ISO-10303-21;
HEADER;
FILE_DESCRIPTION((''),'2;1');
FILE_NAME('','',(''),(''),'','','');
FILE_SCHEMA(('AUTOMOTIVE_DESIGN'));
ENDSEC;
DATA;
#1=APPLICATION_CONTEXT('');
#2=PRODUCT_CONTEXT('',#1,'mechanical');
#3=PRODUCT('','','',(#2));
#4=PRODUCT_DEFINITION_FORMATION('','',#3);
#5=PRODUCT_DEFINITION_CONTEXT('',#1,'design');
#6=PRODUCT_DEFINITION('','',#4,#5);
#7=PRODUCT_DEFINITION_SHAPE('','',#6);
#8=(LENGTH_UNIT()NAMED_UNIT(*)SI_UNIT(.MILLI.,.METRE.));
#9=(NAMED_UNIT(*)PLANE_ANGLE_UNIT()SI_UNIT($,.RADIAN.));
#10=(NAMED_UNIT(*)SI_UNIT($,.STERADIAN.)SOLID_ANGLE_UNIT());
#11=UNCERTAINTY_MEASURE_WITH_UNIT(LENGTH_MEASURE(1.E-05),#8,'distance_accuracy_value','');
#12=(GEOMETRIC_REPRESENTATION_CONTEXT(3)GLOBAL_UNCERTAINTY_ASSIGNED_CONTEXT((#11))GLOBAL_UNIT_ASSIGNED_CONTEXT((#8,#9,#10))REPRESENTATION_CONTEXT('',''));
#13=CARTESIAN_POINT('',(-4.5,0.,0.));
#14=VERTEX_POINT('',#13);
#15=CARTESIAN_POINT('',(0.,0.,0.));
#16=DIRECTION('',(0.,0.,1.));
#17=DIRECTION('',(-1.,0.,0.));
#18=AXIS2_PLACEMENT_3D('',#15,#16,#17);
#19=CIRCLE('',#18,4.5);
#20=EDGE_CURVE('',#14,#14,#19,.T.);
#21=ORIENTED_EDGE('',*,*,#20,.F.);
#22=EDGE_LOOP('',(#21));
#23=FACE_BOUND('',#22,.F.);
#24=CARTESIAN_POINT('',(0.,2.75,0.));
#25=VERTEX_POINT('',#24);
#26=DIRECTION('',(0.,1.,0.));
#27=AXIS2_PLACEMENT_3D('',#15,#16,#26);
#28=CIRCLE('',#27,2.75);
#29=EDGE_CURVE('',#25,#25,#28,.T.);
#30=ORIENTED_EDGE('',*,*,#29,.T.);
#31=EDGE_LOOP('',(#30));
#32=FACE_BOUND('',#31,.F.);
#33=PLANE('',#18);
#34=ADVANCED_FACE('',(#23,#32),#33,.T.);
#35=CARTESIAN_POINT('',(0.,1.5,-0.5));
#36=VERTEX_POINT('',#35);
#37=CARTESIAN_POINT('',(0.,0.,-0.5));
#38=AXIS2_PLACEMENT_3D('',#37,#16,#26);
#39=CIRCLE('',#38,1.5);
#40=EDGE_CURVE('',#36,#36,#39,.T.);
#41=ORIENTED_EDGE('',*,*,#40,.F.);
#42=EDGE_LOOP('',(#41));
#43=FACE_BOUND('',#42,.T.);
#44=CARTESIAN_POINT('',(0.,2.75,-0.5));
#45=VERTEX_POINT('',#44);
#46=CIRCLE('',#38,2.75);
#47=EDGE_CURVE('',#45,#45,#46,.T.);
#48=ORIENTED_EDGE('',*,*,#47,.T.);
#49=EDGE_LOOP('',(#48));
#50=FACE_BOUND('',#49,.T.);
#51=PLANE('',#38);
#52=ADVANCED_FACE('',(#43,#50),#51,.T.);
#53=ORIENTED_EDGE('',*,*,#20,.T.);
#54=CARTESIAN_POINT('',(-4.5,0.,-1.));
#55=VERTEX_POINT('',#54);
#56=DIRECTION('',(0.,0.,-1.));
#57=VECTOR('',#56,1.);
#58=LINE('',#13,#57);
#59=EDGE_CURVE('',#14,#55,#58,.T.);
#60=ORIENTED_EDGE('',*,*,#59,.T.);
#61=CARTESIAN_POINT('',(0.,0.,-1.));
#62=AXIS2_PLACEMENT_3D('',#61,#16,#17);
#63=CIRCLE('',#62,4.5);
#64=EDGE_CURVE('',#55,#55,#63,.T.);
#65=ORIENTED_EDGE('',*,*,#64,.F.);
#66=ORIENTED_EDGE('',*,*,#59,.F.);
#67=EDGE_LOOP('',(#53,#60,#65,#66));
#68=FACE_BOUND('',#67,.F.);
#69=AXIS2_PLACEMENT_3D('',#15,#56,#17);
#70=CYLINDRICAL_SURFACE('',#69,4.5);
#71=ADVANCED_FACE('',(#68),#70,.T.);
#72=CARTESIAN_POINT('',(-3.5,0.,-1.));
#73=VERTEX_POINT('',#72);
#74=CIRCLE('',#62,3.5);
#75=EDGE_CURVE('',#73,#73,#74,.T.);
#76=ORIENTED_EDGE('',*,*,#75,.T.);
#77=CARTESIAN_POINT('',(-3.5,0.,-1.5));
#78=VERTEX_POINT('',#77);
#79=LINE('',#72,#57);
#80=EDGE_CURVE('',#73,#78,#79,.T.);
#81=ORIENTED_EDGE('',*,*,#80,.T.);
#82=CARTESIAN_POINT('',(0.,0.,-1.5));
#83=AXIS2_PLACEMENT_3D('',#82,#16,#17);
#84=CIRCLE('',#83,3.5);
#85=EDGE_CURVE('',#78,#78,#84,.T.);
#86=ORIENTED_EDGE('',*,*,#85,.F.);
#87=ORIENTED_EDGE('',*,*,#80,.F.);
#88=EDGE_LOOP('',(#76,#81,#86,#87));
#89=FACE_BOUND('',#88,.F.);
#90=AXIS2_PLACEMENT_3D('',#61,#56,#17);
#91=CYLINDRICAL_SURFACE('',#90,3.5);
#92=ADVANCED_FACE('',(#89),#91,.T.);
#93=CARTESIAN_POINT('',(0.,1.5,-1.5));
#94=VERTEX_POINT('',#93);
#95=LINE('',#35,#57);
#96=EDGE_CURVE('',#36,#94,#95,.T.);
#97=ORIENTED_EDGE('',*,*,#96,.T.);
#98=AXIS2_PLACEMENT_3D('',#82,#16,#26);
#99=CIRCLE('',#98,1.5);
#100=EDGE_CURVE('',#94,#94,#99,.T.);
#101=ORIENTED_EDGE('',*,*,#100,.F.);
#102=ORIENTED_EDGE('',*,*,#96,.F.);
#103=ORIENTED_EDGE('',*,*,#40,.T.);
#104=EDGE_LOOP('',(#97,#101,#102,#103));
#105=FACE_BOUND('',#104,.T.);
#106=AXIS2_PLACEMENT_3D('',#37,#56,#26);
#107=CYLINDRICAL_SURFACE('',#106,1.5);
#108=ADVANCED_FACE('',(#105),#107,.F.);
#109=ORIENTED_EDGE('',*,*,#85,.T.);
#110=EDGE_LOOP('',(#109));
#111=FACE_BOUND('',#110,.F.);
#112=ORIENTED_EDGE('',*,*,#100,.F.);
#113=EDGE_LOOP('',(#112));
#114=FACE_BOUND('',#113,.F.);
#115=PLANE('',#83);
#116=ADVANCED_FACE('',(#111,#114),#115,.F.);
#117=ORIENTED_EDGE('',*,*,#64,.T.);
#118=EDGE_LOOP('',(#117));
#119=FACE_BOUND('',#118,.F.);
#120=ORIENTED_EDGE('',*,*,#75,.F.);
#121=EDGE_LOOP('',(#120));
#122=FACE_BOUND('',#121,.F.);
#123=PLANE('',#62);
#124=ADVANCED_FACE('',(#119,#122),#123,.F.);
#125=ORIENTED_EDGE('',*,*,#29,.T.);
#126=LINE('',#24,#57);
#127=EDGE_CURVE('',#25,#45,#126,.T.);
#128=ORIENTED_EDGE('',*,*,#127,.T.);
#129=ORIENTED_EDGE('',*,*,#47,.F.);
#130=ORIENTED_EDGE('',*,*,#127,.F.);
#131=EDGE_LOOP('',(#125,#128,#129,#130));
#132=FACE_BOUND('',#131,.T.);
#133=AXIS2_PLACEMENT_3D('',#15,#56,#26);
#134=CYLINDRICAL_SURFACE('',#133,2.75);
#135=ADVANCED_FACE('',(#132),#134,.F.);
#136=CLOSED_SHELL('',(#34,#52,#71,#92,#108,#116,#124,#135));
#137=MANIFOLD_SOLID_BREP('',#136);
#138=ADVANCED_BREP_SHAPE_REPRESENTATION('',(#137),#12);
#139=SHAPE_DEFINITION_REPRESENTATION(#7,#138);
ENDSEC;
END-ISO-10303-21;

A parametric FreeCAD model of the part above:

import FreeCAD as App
import Part
import Sketcher
Q = App.Units.Quantity

doc = App.newDocument("Part")
body = doc.addObject("PartDesign::Body", "Body")

# Sketch on XZ plane
sketch1 = body.newObject("Sketcher::SketchObject", "Sketch")
sketch1.AttachmentSupport = (doc.getObject("XZ_Plane"), [""])
sketch1.MapMode = "FlatFace"
sketch1.addGeometry([
    Part.LineSegment(App.Vector(-4.5, 0, 0), App.Vector(0, 0, 0)),  # 0
    Part.LineSegment(App.Vector(0, 0, 0), App.Vector(0, -1.5, 0)),  # 1
    Part.LineSegment(App.Vector(0, -1.5, 0), App.Vector(-3.5, -1.5, 0)),  # 2
    Part.LineSegment(App.Vector(-3.5, -1.5, 0), App.Vector(-3.5, -1, 0)),  # 3
    Part.LineSegment(App.Vector(-3.5, -1, 0), App.Vector(-4.5, -1, 0)),  # 4
    Part.LineSegment(App.Vector(-4.5, -1, 0), App.Vector(-4.5, 0, 0)),  # 5
], False)
sketch1.addConstraint([
    Sketcher.Constraint("Coincident", 0, 2, 1, 1),
    Sketcher.Constraint("Coincident", 1, 2, 2, 1),
    Sketcher.Constraint("Coincident", 2, 2, 3, 1),
    Sketcher.Constraint("Coincident", 3, 2, 4, 1),
    Sketcher.Constraint("Coincident", 4, 2, 5, 1),
    Sketcher.Constraint("Coincident", 5, 2, 0, 1),
    Sketcher.Constraint("Horizontal", 0),
    Sketcher.Constraint("Vertical", 1),
    Sketcher.Constraint("Horizontal", 2),
    Sketcher.Constraint("Vertical", 3),
    Sketcher.Constraint("Horizontal", 4),
    Sketcher.Constraint("Vertical", 5),
    Sketcher.Constraint("Coincident", 0, 2, -1, 1),
    Sketcher.Constraint("Equal", 4, 5),
    Sketcher.Constraint("DistanceY", 1, 2, 1, 1, Q("1.5 mm")),
    Sketcher.Constraint("DistanceY", 3, 1, 3, 2, Q("0.5 mm")),
    Sketcher.Constraint("DistanceX", 0, 1, 0, 2, Q("4.5 mm")),
])
revolution = body.newObject("PartDesign::Revolution", "Revolution")
revolution.Profile = sketch1
revolution.ReferenceAxis = (sketch1, ["V_Axis"])
revolution.Angle = 360

# Sketch on YZ plane
sketch2 = body.newObject("Sketcher::SketchObject", "Sketch001")
sketch2.AttachmentSupport = (doc.getObject("YZ_Plane"), [""])
sketch2.MapMode = "FlatFace"
sketch2.addGeometry([
    Part.LineSegment(App.Vector(2.75, 0, 0), App.Vector(0, 0, 0)),  # 0
    Part.LineSegment(App.Vector(0, 0, 0), App.Vector(0, -1.5, 0)),  # 1
    Part.LineSegment(App.Vector(0, -1.5, 0), App.Vector(1.5, -1.5, 0)),  # 2
    Part.LineSegment(App.Vector(1.5, -1.5, 0), App.Vector(1.5, -0.5, 0)),  # 3
    Part.LineSegment(App.Vector(1.5, -0.5, 0), App.Vector(2.75, -0.5, 0)),  # 4
    Part.LineSegment(App.Vector(2.75, -0.5, 0), App.Vector(2.75, 0, 0)),  # 5
], False)
sketch2.addConstraint([
    Sketcher.Constraint("Coincident", 0, 2, 1, 1),
    Sketcher.Constraint("Coincident", 1, 2, 2, 1),
    Sketcher.Constraint("Coincident", 2, 2, 3, 1),
    Sketcher.Constraint("Coincident", 3, 2, 4, 1),
    Sketcher.Constraint("Coincident", 4, 2, 5, 1),
    Sketcher.Constraint("Coincident", 5, 2, 0, 1),
    Sketcher.Constraint("Horizontal", 0),
    Sketcher.Constraint("Vertical", 1),
    Sketcher.Constraint("Horizontal", 2),
    Sketcher.Constraint("Vertical", 3),
    Sketcher.Constraint("Horizontal", 4),
    Sketcher.Constraint("Vertical", 5),
    Sketcher.Constraint("Coincident", 0, 2, -1, 1),
    Sketcher.Constraint("Equal", 2, 1),
    Sketcher.Constraint("DistanceY", 5, 1, 5, 2, Q("0.5 mm")),
    Sketcher.Constraint("DistanceY", 3, 1, 3, 2, Q("1 mm")),
    Sketcher.Constraint("DistanceX", 0, 2, 0, 1, Q("2.75 mm")),
])
groove = body.newObject("PartDesign::Groove", "Groove")
groove.Profile = sketch2
groove.ReferenceAxis = (sketch2, ["V_Axis"])
groove.Angle = 360

doc.recompute()
